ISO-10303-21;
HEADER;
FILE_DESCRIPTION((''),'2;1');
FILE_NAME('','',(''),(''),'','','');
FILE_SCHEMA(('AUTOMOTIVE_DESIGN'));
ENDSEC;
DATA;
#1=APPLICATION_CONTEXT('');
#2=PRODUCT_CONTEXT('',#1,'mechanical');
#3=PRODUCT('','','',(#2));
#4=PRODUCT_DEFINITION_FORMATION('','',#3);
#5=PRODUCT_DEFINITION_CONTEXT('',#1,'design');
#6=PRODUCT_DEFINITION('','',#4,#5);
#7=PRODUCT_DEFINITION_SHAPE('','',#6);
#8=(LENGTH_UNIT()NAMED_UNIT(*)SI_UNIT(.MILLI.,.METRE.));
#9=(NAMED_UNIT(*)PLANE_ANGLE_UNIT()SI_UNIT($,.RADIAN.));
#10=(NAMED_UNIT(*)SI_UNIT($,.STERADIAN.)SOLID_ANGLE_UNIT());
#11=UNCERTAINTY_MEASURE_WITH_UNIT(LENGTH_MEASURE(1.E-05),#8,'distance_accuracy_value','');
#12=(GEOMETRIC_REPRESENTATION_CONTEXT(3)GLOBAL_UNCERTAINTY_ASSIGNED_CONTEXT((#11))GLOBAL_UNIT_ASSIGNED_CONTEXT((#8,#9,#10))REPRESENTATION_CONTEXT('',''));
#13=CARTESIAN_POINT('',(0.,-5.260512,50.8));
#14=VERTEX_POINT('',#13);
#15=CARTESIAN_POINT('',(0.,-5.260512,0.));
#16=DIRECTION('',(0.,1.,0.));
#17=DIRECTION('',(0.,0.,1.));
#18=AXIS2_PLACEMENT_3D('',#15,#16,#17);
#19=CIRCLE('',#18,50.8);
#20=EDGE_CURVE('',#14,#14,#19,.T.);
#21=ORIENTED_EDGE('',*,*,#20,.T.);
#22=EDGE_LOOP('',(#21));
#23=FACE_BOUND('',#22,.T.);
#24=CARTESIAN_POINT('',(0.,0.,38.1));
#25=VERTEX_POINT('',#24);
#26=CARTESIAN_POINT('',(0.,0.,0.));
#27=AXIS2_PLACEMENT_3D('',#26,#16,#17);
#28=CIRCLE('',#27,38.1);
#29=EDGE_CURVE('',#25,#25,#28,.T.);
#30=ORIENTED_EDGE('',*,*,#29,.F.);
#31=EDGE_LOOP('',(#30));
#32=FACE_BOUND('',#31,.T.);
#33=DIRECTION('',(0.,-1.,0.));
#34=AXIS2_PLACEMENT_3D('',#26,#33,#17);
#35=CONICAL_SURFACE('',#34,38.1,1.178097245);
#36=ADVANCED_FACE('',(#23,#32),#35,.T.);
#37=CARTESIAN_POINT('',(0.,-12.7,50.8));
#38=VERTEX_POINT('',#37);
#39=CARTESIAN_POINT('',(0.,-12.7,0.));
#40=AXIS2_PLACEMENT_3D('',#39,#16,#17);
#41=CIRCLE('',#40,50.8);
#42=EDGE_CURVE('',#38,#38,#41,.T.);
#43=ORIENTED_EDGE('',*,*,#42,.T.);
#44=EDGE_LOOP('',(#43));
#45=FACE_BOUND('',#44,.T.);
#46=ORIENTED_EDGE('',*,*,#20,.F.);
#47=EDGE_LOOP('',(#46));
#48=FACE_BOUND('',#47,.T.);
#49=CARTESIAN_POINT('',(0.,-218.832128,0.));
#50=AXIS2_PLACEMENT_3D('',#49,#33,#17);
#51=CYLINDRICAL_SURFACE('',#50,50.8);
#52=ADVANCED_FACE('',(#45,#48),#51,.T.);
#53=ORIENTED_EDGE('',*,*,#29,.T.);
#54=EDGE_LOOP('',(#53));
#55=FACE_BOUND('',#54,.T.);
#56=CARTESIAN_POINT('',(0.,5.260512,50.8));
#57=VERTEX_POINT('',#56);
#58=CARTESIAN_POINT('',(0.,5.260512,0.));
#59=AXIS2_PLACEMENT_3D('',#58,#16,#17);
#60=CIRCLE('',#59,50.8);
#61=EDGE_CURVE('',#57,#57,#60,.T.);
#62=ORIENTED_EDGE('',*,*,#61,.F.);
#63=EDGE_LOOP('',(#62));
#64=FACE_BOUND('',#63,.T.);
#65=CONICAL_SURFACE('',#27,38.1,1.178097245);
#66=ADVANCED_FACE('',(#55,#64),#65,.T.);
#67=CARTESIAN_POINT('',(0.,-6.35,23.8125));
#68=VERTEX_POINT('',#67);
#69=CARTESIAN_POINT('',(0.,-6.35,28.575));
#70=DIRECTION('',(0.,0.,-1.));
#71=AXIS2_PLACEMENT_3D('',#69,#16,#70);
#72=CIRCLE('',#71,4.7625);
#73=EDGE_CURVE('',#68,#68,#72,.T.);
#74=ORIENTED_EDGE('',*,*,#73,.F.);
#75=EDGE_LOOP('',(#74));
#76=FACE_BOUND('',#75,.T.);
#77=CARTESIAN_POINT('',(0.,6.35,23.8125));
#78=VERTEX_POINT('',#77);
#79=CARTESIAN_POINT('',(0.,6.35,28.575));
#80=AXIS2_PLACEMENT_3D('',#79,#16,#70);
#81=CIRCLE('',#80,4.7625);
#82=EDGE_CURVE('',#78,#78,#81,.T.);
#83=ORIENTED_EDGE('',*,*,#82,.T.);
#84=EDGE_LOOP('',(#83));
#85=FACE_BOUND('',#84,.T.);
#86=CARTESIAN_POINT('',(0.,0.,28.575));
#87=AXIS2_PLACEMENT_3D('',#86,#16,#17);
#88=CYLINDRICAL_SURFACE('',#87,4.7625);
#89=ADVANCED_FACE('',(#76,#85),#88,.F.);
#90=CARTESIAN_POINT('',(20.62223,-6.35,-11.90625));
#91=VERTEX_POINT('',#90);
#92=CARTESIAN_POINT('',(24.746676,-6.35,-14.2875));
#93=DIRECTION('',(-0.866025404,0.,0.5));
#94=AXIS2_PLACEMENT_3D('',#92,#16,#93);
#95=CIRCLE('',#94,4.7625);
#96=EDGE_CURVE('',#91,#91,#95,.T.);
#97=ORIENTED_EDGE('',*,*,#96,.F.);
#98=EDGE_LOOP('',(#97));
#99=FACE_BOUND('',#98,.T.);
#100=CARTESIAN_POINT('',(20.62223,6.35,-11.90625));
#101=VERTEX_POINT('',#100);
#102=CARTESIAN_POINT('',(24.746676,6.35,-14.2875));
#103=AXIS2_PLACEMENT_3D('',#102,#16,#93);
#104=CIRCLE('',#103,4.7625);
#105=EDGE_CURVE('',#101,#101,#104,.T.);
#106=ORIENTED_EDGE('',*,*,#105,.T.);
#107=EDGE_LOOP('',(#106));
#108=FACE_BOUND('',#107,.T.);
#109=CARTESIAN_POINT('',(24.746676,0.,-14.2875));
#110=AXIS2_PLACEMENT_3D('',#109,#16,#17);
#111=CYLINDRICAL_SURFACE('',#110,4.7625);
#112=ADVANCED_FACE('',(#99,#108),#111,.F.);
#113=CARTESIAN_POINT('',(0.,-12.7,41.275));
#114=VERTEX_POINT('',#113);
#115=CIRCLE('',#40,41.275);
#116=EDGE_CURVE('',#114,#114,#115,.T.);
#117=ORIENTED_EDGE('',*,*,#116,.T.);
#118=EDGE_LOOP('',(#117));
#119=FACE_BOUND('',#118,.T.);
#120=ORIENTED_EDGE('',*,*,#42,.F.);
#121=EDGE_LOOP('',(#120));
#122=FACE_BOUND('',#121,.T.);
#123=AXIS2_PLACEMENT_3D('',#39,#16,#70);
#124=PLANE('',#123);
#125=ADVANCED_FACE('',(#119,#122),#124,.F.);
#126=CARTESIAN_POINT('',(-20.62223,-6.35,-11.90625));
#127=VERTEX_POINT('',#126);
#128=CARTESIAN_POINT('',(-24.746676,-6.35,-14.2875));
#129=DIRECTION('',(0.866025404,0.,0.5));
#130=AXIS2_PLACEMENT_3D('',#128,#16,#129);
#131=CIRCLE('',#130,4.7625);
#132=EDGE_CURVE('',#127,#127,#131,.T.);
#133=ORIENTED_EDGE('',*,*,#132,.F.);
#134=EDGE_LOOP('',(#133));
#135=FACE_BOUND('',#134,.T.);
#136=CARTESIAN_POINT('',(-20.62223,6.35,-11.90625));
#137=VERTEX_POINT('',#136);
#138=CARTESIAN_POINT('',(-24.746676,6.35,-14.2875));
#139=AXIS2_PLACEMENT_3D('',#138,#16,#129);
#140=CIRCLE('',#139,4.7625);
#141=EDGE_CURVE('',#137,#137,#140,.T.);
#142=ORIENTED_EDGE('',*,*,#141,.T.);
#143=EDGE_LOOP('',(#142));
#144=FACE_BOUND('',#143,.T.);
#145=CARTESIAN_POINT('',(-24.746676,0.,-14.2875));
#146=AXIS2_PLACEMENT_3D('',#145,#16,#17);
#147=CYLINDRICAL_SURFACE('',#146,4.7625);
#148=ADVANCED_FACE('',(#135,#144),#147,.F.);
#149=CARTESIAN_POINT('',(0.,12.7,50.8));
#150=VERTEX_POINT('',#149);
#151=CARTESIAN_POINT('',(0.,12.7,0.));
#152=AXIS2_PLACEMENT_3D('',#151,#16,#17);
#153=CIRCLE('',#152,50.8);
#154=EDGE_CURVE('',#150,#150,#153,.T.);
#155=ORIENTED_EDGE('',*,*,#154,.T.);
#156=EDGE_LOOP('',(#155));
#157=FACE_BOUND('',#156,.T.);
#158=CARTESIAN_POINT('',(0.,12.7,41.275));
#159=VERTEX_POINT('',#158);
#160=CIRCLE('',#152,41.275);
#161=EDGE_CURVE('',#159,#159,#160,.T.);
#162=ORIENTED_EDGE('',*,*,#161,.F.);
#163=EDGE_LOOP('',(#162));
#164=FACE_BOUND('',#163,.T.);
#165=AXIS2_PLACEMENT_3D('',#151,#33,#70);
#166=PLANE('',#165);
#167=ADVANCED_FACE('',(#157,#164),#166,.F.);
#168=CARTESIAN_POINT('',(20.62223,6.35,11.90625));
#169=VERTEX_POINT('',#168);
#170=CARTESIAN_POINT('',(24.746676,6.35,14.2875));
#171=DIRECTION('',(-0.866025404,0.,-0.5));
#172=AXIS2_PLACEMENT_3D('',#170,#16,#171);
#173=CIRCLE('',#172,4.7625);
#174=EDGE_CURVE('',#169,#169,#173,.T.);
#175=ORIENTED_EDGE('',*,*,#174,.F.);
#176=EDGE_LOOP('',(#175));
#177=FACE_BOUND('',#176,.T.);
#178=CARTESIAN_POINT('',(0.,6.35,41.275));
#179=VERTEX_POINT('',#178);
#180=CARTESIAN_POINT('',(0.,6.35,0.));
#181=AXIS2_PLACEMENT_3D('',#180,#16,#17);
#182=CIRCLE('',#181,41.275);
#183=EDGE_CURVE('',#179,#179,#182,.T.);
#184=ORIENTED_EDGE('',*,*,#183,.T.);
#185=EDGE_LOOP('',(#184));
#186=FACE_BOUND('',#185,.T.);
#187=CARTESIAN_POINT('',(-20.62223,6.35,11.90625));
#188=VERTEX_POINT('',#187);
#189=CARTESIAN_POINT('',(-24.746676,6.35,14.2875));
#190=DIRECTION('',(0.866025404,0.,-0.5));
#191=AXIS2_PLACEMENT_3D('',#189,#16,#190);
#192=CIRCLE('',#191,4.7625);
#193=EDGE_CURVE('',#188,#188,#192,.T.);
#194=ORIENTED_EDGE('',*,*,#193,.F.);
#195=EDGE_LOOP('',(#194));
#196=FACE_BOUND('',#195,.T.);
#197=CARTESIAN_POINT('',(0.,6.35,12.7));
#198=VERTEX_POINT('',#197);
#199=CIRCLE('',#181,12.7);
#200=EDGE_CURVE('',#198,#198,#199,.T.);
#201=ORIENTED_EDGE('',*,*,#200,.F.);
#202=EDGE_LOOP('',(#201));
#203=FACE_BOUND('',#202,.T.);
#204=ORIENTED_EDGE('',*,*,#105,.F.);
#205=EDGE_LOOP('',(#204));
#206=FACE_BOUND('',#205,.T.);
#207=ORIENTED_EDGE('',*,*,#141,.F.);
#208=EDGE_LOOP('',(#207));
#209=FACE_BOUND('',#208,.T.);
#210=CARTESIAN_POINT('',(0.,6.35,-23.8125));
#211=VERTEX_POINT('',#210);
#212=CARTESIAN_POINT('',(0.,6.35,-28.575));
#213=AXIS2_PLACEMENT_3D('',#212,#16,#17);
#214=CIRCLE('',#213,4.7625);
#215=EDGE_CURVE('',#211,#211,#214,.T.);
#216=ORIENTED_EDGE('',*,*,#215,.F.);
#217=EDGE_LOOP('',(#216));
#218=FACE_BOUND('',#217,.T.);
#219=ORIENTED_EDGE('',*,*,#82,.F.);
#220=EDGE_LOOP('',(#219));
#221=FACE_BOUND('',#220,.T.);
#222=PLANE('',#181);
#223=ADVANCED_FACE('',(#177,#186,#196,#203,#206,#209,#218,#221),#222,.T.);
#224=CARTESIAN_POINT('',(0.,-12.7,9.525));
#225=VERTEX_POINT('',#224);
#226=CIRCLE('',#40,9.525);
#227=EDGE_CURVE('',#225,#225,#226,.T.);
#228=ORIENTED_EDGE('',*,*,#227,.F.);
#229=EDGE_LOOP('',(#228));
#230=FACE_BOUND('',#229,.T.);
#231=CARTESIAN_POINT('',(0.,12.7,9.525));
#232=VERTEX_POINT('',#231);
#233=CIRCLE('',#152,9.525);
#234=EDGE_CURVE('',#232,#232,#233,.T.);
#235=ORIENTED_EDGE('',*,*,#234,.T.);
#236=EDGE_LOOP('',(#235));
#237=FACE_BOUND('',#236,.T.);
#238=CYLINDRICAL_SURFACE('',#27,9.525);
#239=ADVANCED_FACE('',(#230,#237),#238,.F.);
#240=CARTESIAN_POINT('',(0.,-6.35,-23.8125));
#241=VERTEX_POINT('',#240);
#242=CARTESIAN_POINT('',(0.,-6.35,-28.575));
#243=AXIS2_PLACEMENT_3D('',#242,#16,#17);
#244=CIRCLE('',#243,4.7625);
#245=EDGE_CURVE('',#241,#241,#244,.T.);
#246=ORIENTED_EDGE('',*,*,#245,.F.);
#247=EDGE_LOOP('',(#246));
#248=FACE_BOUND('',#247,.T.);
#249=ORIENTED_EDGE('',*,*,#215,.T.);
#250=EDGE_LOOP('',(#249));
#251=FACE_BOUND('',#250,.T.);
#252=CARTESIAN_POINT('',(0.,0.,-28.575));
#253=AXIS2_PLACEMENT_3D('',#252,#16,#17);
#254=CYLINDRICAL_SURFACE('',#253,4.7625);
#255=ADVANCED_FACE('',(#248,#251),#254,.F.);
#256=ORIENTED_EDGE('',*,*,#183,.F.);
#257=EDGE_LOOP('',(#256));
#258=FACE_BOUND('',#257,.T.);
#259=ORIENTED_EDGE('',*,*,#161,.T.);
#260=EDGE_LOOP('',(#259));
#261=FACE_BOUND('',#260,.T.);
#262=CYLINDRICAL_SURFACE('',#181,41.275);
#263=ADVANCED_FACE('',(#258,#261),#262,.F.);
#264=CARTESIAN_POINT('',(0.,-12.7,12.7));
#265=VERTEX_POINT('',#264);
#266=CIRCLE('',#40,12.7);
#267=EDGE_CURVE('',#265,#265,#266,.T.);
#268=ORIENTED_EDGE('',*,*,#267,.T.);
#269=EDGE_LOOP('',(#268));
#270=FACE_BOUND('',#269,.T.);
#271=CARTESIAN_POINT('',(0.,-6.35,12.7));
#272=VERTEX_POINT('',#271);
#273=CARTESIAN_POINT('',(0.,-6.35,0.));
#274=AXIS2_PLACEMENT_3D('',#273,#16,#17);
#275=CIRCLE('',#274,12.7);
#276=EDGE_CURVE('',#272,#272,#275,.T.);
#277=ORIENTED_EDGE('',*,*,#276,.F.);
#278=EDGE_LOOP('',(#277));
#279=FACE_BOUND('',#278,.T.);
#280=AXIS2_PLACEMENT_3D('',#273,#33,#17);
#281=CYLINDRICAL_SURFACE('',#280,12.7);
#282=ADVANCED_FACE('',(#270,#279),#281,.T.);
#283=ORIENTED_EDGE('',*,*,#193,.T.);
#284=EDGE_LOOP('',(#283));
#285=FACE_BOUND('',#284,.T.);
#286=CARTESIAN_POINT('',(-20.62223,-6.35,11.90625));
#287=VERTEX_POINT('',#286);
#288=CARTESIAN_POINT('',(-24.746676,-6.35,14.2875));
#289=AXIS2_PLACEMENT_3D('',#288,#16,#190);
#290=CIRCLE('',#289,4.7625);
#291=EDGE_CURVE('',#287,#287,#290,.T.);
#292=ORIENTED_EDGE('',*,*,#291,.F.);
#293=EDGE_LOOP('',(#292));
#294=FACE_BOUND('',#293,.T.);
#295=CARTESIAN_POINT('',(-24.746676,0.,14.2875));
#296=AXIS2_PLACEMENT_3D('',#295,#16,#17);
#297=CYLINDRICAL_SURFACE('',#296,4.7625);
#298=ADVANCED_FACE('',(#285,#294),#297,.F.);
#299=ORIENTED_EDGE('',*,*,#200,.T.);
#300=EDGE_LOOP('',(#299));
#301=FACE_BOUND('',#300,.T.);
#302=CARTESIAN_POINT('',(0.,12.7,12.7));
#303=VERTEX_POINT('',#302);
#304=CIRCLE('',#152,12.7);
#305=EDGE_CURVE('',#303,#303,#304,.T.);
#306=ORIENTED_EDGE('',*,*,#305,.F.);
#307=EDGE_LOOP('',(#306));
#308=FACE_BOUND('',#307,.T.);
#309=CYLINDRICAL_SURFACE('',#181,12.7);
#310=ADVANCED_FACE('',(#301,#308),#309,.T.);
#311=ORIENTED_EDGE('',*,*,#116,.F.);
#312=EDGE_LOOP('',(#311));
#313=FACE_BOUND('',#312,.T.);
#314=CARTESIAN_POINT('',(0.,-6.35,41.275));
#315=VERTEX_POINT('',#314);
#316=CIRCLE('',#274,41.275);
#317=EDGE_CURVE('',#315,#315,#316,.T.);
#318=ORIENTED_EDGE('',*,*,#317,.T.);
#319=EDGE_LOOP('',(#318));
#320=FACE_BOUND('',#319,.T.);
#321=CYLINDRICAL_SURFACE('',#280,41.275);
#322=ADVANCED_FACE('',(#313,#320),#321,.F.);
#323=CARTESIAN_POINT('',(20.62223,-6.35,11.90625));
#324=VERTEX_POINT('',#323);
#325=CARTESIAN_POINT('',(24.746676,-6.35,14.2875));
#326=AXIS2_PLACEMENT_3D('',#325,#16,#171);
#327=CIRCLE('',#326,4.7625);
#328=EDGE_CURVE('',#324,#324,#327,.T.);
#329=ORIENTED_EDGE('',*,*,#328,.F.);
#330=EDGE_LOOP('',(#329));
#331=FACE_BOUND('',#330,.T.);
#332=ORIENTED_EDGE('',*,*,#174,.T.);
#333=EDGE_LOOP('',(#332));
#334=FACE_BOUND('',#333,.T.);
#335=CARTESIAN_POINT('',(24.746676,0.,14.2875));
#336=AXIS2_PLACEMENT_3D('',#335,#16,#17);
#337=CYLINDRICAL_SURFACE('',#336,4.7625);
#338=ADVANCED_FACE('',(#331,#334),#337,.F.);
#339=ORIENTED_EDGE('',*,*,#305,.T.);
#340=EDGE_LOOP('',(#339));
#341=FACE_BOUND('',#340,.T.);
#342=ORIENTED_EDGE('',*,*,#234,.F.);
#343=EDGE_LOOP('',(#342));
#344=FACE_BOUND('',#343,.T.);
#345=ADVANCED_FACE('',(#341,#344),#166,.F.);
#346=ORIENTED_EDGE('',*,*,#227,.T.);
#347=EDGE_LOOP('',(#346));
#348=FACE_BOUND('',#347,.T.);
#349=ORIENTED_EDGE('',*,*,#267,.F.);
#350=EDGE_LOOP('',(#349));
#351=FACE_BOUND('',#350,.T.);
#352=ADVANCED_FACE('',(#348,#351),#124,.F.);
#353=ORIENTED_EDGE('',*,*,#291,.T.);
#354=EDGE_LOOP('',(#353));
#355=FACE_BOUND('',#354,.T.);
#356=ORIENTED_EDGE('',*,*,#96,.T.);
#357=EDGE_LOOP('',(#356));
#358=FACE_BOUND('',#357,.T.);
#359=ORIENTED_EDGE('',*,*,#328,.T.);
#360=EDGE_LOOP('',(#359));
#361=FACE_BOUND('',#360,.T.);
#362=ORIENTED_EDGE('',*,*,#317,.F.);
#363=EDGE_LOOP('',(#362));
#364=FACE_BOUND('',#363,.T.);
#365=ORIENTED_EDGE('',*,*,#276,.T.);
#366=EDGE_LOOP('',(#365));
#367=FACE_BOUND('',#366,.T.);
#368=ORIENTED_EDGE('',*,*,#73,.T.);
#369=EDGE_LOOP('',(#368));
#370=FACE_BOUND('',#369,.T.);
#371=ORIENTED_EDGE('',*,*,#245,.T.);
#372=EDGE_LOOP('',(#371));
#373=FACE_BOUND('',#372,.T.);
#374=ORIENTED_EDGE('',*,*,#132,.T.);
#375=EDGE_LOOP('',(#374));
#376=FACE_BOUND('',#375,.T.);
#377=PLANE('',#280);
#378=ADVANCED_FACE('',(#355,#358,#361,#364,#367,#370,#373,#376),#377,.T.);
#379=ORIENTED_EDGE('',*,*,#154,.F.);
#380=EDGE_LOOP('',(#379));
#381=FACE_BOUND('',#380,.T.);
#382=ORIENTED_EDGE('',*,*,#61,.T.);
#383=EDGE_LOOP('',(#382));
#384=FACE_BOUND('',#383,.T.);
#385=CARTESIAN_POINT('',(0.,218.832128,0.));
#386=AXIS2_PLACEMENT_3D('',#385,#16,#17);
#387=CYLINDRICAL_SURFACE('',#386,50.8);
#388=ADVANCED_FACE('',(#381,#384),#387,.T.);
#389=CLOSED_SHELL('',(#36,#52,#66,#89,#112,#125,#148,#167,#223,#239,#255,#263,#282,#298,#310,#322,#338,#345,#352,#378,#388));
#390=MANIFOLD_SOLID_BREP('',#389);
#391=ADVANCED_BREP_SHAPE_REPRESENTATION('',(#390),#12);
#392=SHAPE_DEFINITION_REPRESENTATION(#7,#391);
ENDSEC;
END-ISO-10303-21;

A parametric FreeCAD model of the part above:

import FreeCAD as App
import Part
import Sketcher
from FreeCAD import Vector
Q = App.Units.Quantity


def add_polygon(sketch, points):
    """Adds a closed chain of lines whose ends are joined by coincident constraints."""
    first, n = sketch.GeometryCount, len(points)
    for a, b in zip(points, points[1:] + points[:1]):
        sketch.addGeometry(Part.LineSegment(App.Vector(*a, 0), App.Vector(*b, 0)), False)
    for i in range(n):
        sketch.addConstraint(Sketcher.Constraint("Coincident", first + i, 2, first + (i + 1) % n, 1))

doc = App.newDocument("Part")
body = doc.addObject("PartDesign::Body", "Body")

# Sketch on XY plane
sketch1 = body.newObject("Sketcher::SketchObject", "Sketch")
sketch1.AttachmentSupport = (doc.getObject("XY_Plane"), [""])
sketch1.MapMode = "FlatFace"
add_polygon(sketch1, [(0, 12.7), (0, 0), (38.1, 0), (50.8, 5.260512), (50.8, 12.7)])  # lines 0-4
sketch1.addConstraint([
    Sketcher.Constraint("Vertical", 0),
    Sketcher.Constraint("Horizontal", 1),
    Sketcher.Constraint("Vertical", 3),
    Sketcher.Constraint("Horizontal", 4),
    Sketcher.Constraint("Coincident", 0, 2, -1, 1),
    Sketcher.Constraint("DistanceX", 4, 2, 4, 1, Q("2 in")),
    Sketcher.Constraint("DistanceX", 1, 1, 1, 2, Q("1.5 in")),
    Sketcher.Constraint("DistanceY", 0, 2, 0, 1, Q("0.5 in")),
    Sketcher.Constraint("Angle", 2, Q("22.5 deg")),
])
revolution = body.newObject("PartDesign::Revolution", "Revolution")
revolution.Profile = sketch1
revolution.ReferenceAxis = (sketch1, ["V_Axis"])
revolution.Angle = 360

# Sketch on XZ plane
sketch2 = body.newObject("Sketcher::SketchObject", "Sketch001")
sketch2.AttachmentSupport = (doc.getObject("XZ_Plane"), [""])
sketch2.MapMode = "FlatFace"
sketch2.AttachmentOffset = App.Placement(Vector(0, 0, -0.5 * 25.4), App.Rotation())
sketch2.addGeometry([
    Part.Circle(Vector(0, 0, 0), Vector(0, 0, 1), 41.275),
    Part.Circle(Vector(0, 0, 0), Vector(0, 0, 1), 12.7),
], False)
sketch2.addConstraint([
    Sketcher.Constraint("Coincident", 0, 3, -1, 1),
    Sketcher.Constraint("Coincident", 1, 3, -1, 1),
    Sketcher.Constraint("Diameter", 1, Q("1 in")),
    Sketcher.Constraint("Diameter", 0, Q("3.25 in")),
])
pocket1 = body.newObject("PartDesign::Pocket", "Pocket")
pocket1.Profile = sketch2
pocket1.Length = Q("0.25 in")
pocket1.Reversed = True

# Sketch on XZ plane
sketch3 = body.newObject("Sketcher::SketchObject", "Sketch002")
sketch3.AttachmentSupport = (doc.getObject("XZ_Plane"), [""])
sketch3.MapMode = "FlatFace"
sketch3.AttachmentOffset = App.Placement(Vector(0, 0, -0.5 * 25.4), App.Rotation())
sketch3.addGeometry(Part.Circle(Vector(0, 0, 0), Vector(0, 0, 1), 9.525), False)
sketch3.addConstraint([
    Sketcher.Constraint("Coincident", 0, 3, -1, 1),
    Sketcher.Constraint("Diameter", 0, Q("0.75 in")),
])
pocket2 = body.newObject("PartDesign::Pocket", "Pocket001")
pocket2.Profile = sketch3
pocket2.Type = "ThroughAll"
pocket2.Reversed = True

# Sketch on XZ plane
sketch4 = body.newObject("Sketcher::SketchObject", "Sketch003")
sketch4.AttachmentSupport = (doc.getObject("XZ_Plane"), [""])
sketch4.MapMode = "FlatFace"
sketch4.AttachmentOffset = App.Placement(Vector(0, 0, -0.25 * 25.4), App.Rotation())
sketch4.addGeometry(Part.Circle(Vector(0, -28.575, 0), Vector(0, 0, 1), 4.7625), False)
sketch4.addConstraint([
    Sketcher.Constraint("PointOnObject", 0, 3, -2),
    Sketcher.Constraint("Diameter", 0, Q("0.375 in")),
    Sketcher.Constraint("DistanceY", 0, 3, -1, 1, Q("1.125 in")),
])
pocket3 = body.newObject("PartDesign::Pocket", "Pocket002")
pocket3.Profile = sketch4
pocket3.Type = "ThroughAll"
pocket3.Reversed = True
doc.recompute()

polarpattern = body.newObject("PartDesign::PolarPattern", "PolarPattern")
polarpattern.Originals = [pocket3]
polarpattern.Axis = (doc.getObject("Y_Axis"), [""])
polarpattern.Angle = 360
polarpattern.Occurrences = 6
body.Tip = polarpattern
body2 = doc.addObject("PartDesign::Body", "Body001")
doc.recompute()

body2.BaseFeature = body
doc.recompute()

mirroring = doc.addObject("Part::Mirroring", "Mirroring")
mirroring.Source = body
mirroring.Base = Vector(0, 0, 0)
mirroring.Normal = Vector(0, 1, 0)
body3 = doc.addObject("PartDesign::Body", "Body002")
body3.BaseFeature = mirroring
boolean = body2.newObject("PartDesign::Boolean", "Boolean")
boolean.Type = "Fuse"
boolean.addObjects([body3])
doc.recompute()
mirroring.Visibility = False

doc.recompute()
